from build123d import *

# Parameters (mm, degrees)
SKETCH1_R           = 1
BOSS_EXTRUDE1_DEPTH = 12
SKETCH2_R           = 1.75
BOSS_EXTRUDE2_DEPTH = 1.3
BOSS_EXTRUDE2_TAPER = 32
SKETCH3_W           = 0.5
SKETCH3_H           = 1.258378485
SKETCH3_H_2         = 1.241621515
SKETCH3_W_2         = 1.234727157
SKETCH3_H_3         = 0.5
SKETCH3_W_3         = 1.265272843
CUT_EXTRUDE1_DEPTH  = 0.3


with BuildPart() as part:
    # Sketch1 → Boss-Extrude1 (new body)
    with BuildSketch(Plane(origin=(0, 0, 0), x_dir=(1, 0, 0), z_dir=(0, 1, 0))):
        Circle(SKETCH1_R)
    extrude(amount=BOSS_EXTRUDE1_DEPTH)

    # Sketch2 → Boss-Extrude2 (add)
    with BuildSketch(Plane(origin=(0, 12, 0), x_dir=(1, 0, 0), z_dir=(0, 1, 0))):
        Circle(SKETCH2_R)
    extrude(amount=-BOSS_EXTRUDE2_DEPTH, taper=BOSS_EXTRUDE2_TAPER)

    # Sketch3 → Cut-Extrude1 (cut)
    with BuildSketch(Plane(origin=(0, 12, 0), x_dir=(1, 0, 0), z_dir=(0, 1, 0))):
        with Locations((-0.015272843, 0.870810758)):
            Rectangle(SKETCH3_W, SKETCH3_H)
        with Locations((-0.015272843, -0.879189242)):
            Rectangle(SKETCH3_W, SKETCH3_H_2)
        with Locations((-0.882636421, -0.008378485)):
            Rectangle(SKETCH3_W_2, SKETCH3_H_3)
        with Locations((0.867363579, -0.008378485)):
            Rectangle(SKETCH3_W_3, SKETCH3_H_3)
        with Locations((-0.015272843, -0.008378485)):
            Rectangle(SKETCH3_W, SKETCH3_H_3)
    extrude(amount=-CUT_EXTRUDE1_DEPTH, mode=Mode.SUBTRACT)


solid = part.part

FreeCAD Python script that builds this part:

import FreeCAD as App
import Part
import Sketcher

V = App.Vector
Q = App.Units.Quantity

doc = App.newDocument("Part")
params = doc.addObject("Spreadsheet::Sheet", "Params")
for row, (alias, value) in enumerate([
    ("sketch1_diameter", "2 mm"),
    ("pad1_length", "12 mm"),
    ("sketch2_diameter", "3.5 mm"),
    ("pad2_length", "1.3 mm"),
    ("pad2_taper", "-32 deg"),
    ("sketch3_width", "0.5 mm"),
    ("pocket1_length", "0.3 mm"),
], start=1):
    params.set(f"A{row}", alias)
    params.set(f"B{row}", "=" + value)
    params.setAlias(f"B{row}", alias)

body = doc.addObject("PartDesign::Body", "Body")

# Sketch on XZ plane
sketch1 = body.newObject("Sketcher::SketchObject", "Sketch")
sketch1.AttachmentSupport = (doc.getObject("XZ_Plane"), [""])
sketch1.MapMode = "FlatFace"
sketch1.addGeometry(Part.Circle(V(0, 0, 0), V(0, 0, 1), 1), False)
sketch1.addConstraint([
    Sketcher.Constraint("Coincident", 0, 3, -1, 1),
    Sketcher.Constraint("Diameter", 0, Q("2 mm")),
])
sketch1.setExpression("Constraints[1]", "Params.sketch1_diameter")
pad1 = body.newObject("PartDesign::Pad", "Pad")
pad1.Profile = sketch1
pad1.setExpression("Length", "Params.pad1_length")
pad1.Reversed = True

# Sketch on XZ plane
sketch2 = body.newObject("Sketcher::SketchObject", "Sketch001")
sketch2.AttachmentSupport = (doc.getObject("XZ_Plane"), [""])
sketch2.MapMode = "FlatFace"
sketch2.AttachmentOffset = App.Placement(V(0, 0, -12), App.Rotation())
sketch2.addGeometry(Part.Circle(V(0, 0, 0), V(0, 0, 1), 1.8), False)
sketch2.addConstraint([
    Sketcher.Constraint("Coincident", 0, 3, -1, 1),
    Sketcher.Constraint("Diameter", 0, Q("3.5 mm")),
])
sketch2.setExpression("Constraints[1]", "Params.sketch2_diameter")
pad2 = body.newObject("PartDesign::Pad", "Pad001")
pad2.Profile = sketch2
pad2.setExpression("Length", "Params.pad2_length")
pad2.setExpression("TaperAngle", "Params.pad2_taper")

# Sketch on XZ plane
sketch3 = body.newObject("Sketcher::SketchObject", "Sketch002")
sketch3.AttachmentSupport = (doc.getObject("XZ_Plane"), [""])
sketch3.MapMode = "FlatFace"
sketch3.AttachmentOffset = App.Placement(V(0, 0, -12), App.Rotation())
sketch3.addGeometry([
    Part.LineSegment(V(-0.3, -1.5, 0), V(-0.3, -0.2, 0)),  # 0
    Part.LineSegment(V(-0.3, -0.2, 0), V(-1.5, -0.2, 0)),  # 1
    Part.LineSegment(V(-1.5, -0.2, 0), V(-1.5, 0.3, 0)),  # 2
    Part.LineSegment(V(-1.5, 0.3, 0), V(-0.3, 0.3, 0)),  # 3
    Part.LineSegment(V(-0.3, 0.3, 0), V(-0.3, 1.5, 0)),  # 4
    Part.LineSegment(V(-0.3, 1.5, 0), V(0.2, 1.5, 0)),  # 5
    Part.LineSegment(V(0.2, 1.5, 0), V(0.2, 0.3, 0)),  # 6
    Part.LineSegment(V(0.2, 0.3, 0), V(1.5, 0.3, 0)),  # 7
    Part.LineSegment(V(1.5, 0.3, 0), V(1.5, -0.2, 0)),  # 8
    Part.LineSegment(V(1.5, -0.2, 0), V(0.2, -0.2, 0)),  # 9
    Part.LineSegment(V(0.2, -0.2, 0), V(0.2, -1.5, 0)),  # 10
    Part.LineSegment(V(0.2, -1.5, 0), V(-0.3, -1.5, 0)),  # 11
], False)
sketch3.addConstraint([
    Sketcher.Constraint("Coincident", 0, 2, 1, 1),
    Sketcher.Constraint("Coincident", 1, 2, 2, 1),
    Sketcher.Constraint("Coincident", 2, 2, 3, 1),
    Sketcher.Constraint("Coincident", 3, 2, 4, 1),
    Sketcher.Constraint("Coincident", 4, 2, 5, 1),
    Sketcher.Constraint("Coincident", 5, 2, 6, 1),
    Sketcher.Constraint("Coincident", 6, 2, 7, 1),
    Sketcher.Constraint("Coincident", 7, 2, 8, 1),
    Sketcher.Constraint("Coincident", 8, 2, 9, 1),
    Sketcher.Constraint("Coincident", 9, 2, 10, 1),
    Sketcher.Constraint("Coincident", 10, 2, 11, 1),
    Sketcher.Constraint("Coincident", 11, 2, 0, 1),
    Sketcher.Constraint("Vertical", 0),
    Sketcher.Constraint("Horizontal", 1),
    Sketcher.Constraint("Vertical", 2),
    Sketcher.Constraint("Horizontal", 3),
    Sketcher.Constraint("Vertical", 4),
    Sketcher.Constraint("Horizontal", 5),
    Sketcher.Constraint("Vertical", 6),
    Sketcher.Constraint("Horizontal", 7),
    Sketcher.Constraint("Vertical", 8),
    Sketcher.Constraint("Horizontal", 9),
    Sketcher.Constraint("Vertical", 10),
    Sketcher.Constraint("Horizontal", 11),
    Sketcher.Constraint("Symmetric", 2, 2, 7, 2, -2),
    Sketcher.Constraint("Symmetric", 5, 2, 10, 2, -1),
    Sketcher.Constraint("Horizontal", 1, 2, 8, 2),
    Sketcher.Constraint("Vertical", 0, 2, 3, 2),
    Sketcher.Constraint("Equal", 11, 2),
    Sketcher.Constraint("DistanceX", 5, 1, 5, 2, Q("0.5 mm")),
    Sketcher.Constraint("DistanceX", 1, 2, -1, 1, Q("1.5 mm")),
    Sketcher.Constraint("DistanceY", -1, 1, 4, 2, Q("1.5 mm")),
    Sketcher.Constraint("DistanceY", 0, 1, 0, 2, Q("1.258378 mm")),
    Sketcher.Constraint("DistanceX", 1, 2, 1, 1, Q("1.234727 mm")),
])
sketch3.setExpression("Constraints[29]", "Params.sketch3_width")
pocket1 = body.newObject("PartDesign::Pocket", "Pocket")
pocket1.Profile = sketch3
pocket1.setExpression("Length", "Params.pocket1_length")
pocket1.Reversed = True

doc.recompute()
